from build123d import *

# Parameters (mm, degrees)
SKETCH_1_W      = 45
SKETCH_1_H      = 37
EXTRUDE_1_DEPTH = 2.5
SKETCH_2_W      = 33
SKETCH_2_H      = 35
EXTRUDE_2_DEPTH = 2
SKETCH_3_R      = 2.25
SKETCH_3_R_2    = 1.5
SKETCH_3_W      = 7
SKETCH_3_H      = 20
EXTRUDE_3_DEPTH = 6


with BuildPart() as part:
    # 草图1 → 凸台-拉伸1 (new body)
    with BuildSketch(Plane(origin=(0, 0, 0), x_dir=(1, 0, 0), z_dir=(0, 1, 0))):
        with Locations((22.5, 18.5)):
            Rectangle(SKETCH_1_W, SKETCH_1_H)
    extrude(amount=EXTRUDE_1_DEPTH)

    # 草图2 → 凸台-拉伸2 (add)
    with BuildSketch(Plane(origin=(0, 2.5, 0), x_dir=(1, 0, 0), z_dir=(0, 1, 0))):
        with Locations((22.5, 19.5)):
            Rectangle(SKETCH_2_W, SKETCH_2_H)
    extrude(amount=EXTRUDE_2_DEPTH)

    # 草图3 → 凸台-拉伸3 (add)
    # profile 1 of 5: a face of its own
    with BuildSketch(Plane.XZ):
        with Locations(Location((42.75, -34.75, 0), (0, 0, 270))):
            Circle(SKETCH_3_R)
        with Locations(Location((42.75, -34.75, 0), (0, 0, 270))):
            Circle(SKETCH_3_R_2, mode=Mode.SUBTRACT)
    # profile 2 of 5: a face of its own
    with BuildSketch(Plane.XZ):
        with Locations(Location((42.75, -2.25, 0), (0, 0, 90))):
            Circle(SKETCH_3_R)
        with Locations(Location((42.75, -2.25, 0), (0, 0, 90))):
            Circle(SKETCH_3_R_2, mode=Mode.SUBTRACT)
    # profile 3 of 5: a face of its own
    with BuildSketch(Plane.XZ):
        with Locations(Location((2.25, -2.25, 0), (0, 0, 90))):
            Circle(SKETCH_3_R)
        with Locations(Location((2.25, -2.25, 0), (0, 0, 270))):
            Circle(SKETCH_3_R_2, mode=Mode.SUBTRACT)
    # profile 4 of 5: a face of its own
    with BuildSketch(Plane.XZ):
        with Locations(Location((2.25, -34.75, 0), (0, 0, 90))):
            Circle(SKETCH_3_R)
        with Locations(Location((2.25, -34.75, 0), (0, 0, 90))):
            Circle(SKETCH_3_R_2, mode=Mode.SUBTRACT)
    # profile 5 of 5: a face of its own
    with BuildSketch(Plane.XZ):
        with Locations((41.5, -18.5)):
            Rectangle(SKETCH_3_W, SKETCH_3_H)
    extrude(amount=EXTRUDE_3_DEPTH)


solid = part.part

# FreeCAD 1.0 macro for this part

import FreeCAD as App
import Part
import Sketcher
Q = App.Units.Quantity

doc = App.newDocument("Part")
body = doc.addObject("PartDesign::Body", "Body")

# Sketch on XZ plane
sketch1 = doc.addObject("Sketcher::SketchObject", "Sketch")
body.addObject(sketch1)
sketch1.AttachmentSupport = (doc.XZ_Plane, [""])
sketch1.MapMode = "FlatFace"
sketch1.addGeometry([
    Part.LineSegment(App.Vector(0, -37, 0), App.Vector(0, 0, 0)),
    Part.LineSegment(App.Vector(0, 0, 0), App.Vector(45, 0, 0)),
    Part.LineSegment(App.Vector(45, 0, 0), App.Vector(45, -37, 0)),
    Part.LineSegment(App.Vector(45, -37, 0), App.Vector(0, -37, 0)),
], False)
sketch1.addConstraint([
    Sketcher.Constraint("Coincident", 0, 2, 1, 1),
    Sketcher.Constraint("Coincident", 1, 2, 2, 1),
    Sketcher.Constraint("Coincident", 2, 2, 3, 1),
    Sketcher.Constraint("Coincident", 3, 2, 0, 1),
    Sketcher.Constraint("Vertical", 0),
    Sketcher.Constraint("Horizontal", 1),
    Sketcher.Constraint("Vertical", 2),
    Sketcher.Constraint("Horizontal", 3),
    Sketcher.Constraint("Coincident", 0, 2, -1, 1),
    Sketcher.Constraint("DistanceX", 1, 1, 1, 2, Q("45 mm")),
    Sketcher.Constraint("DistanceY", 0, 1, 0, 2, Q("37 mm")),
])
pad1 = doc.addObject("PartDesign::Pad", "Pad")
body.addObject(pad1)
pad1.Profile = sketch1
pad1.Length = 2.5
pad1.Reversed = True

# Sketch on XZ plane
sketch2 = doc.addObject("Sketcher::SketchObject", "Sketch001")
body.addObject(sketch2)
sketch2.AttachmentSupport = (doc.XZ_Plane, [""])
sketch2.MapMode = "FlatFace"
sketch2.AttachmentOffset = App.Placement(App.Vector(0, 0, -2.5), App.Rotation())
sketch2.addGeometry([
    Part.LineSegment(App.Vector(6, -37, 0), App.Vector(6, -2, 0)),
    Part.LineSegment(App.Vector(6, -2, 0), App.Vector(39, -2, 0)),
    Part.LineSegment(App.Vector(39, -2, 0), App.Vector(39, -37, 0)),
    Part.LineSegment(App.Vector(39, -37, 0), App.Vector(6, -37, 0)),
], False)
sketch2.addConstraint([
    Sketcher.Constraint("Coincident", 0, 2, 1, 1),
    Sketcher.Constraint("Coincident", 1, 2, 2, 1),
    Sketcher.Constraint("Coincident", 2, 2, 3, 1),
    Sketcher.Constraint("Coincident", 3, 2, 0, 1),
    Sketcher.Constraint("Vertical", 0),
    Sketcher.Constraint("Horizontal", 1),
    Sketcher.Constraint("Vertical", 2),
    Sketcher.Constraint("Horizontal", 3),
    Sketcher.Constraint("DistanceX", 1, 1, 1, 2, Q("33 mm")),
    Sketcher.Constraint("DistanceY", 0, 1, 0, 2, Q("35 mm")),
    Sketcher.Constraint("DistanceX", -1, 1, 0, 2, Q("6 mm")),
    Sketcher.Constraint("DistanceY", 0, 2, -1, 1, Q("2 mm")),
])
pad2 = doc.addObject("PartDesign::Pad", "Pad001")
body.addObject(pad2)
pad2.Profile = sketch2
pad2.Length = 2
pad2.Reversed = True

# Sketch on XZ plane
sketch3 = doc.addObject("Sketcher::SketchObject", "Sketch002")
body.addObject(sketch3)
sketch3.AttachmentSupport = (doc.XZ_Plane, [""])
sketch3.MapMode = "FlatFace"
sketch3.addGeometry([
    Part.Circle(App.Vector(42.8, -34.8, 0), App.Vector(0, 0, 1), 2.2),  # 0
    Part.Circle(App.Vector(42.8, -34.8, 0), App.Vector(0, 0, 1), 1.5),  # 1
    Part.Circle(App.Vector(42.8, -2.2, 0), App.Vector(0, 0, 1), 2.2),  # 2
    Part.Circle(App.Vector(42.8, -2.2, 0), App.Vector(0, 0, 1), 1.5),  # 3
    Part.Circle(App.Vector(2.2, -2.2, 0), App.Vector(0, 0, 1), 2.2),  # 4
    Part.Circle(App.Vector(2.2, -2.2, 0), App.Vector(0, 0, 1), 1.5),  # 5
    Part.Circle(App.Vector(2.2, -34.8, 0), App.Vector(0, 0, 1), 2.2),  # 6
    Part.Circle(App.Vector(2.2, -34.8, 0), App.Vector(0, 0, 1), 1.5),  # 7
    Part.LineSegment(App.Vector(38, -8.5, 0), App.Vector(38, -28.5, 0)),  # 8
    Part.LineSegment(App.Vector(38, -28.5, 0), App.Vector(45, -28.5, 0)),  # 9
    Part.LineSegment(App.Vector(45, -28.5, 0), App.Vector(45, -8.5, 0)),  # 10
    Part.LineSegment(App.Vector(45, -8.5, 0), App.Vector(38, -8.5, 0)),  # 11
], False)
sketch3.addConstraint([
    Sketcher.Constraint("Coincident", 8, 2, 9, 1),
    Sketcher.Constraint("Coincident", 9, 2, 10, 1),
    Sketcher.Constraint("Coincident", 10, 2, 11, 1),
    Sketcher.Constraint("Coincident", 11, 2, 8, 1),
    Sketcher.Constraint("Vertical", 8),
    Sketcher.Constraint("Horizontal", 9),
    Sketcher.Constraint("Vertical", 10),
    Sketcher.Constraint("Horizontal", 11),
    Sketcher.Constraint("Coincident", 1, 3, 0, 3),
    Sketcher.Constraint("Coincident", 3, 3, 2, 3),
    Sketcher.Constraint("Coincident", 5, 3, 4, 3),
    Sketcher.Constraint("Coincident", 7, 3, 6, 3),
    Sketcher.Constraint("Equal", 0, 2),
    Sketcher.Constraint("Equal", 1, 3),
    Sketcher.Constraint("Equal", 2, 4),
    Sketcher.Constraint("Equal", 3, 5),
    Sketcher.Constraint("Equal", 4, 6),
    Sketcher.Constraint("Equal", 5, 7),
    Sketcher.Constraint("Horizontal", 3, 3, 4, 3),
    Sketcher.Constraint("Horizontal", 1, 3, 6, 3),
    Sketcher.Constraint("Vertical", 1, 3, 2, 3),
    Sketcher.Constraint("Vertical", 5, 3, 6, 3),
    Sketcher.Constraint("Diameter", 1, Q("3 mm")),
    Sketcher.Constraint("Diameter", 0, Q("4.5 mm")),
    Sketcher.Constraint("DistanceX", 9, 1, 9, 2, Q("7 mm")),
    Sketcher.Constraint("DistanceY", 8, 2, 8, 1, Q("20 mm")),
    Sketcher.Constraint("DistanceX", -1, 1, 8, 2, Q("38 mm")),
    Sketcher.Constraint("DistanceY", 8, 2, -1, 1, Q("28.5 mm")),
    Sketcher.Constraint("DistanceY", 0, 3, 2, 3, Q("32.5 mm")),
    Sketcher.Constraint("DistanceX", 4, 3, 2, 3, Q("40.5 mm")),
    Sketcher.Constraint("DistanceX", -1, 1, 0, 3, Q("42.75 mm")),
    Sketcher.Constraint("DistanceY", 0, 3, -1, 1, Q("34.75 mm")),
])
pad3 = doc.addObject("PartDesign::Pad", "Pad002")
body.addObject(pad3)
pad3.Profile = sketch3
pad3.Length = 6

doc.recompute()
